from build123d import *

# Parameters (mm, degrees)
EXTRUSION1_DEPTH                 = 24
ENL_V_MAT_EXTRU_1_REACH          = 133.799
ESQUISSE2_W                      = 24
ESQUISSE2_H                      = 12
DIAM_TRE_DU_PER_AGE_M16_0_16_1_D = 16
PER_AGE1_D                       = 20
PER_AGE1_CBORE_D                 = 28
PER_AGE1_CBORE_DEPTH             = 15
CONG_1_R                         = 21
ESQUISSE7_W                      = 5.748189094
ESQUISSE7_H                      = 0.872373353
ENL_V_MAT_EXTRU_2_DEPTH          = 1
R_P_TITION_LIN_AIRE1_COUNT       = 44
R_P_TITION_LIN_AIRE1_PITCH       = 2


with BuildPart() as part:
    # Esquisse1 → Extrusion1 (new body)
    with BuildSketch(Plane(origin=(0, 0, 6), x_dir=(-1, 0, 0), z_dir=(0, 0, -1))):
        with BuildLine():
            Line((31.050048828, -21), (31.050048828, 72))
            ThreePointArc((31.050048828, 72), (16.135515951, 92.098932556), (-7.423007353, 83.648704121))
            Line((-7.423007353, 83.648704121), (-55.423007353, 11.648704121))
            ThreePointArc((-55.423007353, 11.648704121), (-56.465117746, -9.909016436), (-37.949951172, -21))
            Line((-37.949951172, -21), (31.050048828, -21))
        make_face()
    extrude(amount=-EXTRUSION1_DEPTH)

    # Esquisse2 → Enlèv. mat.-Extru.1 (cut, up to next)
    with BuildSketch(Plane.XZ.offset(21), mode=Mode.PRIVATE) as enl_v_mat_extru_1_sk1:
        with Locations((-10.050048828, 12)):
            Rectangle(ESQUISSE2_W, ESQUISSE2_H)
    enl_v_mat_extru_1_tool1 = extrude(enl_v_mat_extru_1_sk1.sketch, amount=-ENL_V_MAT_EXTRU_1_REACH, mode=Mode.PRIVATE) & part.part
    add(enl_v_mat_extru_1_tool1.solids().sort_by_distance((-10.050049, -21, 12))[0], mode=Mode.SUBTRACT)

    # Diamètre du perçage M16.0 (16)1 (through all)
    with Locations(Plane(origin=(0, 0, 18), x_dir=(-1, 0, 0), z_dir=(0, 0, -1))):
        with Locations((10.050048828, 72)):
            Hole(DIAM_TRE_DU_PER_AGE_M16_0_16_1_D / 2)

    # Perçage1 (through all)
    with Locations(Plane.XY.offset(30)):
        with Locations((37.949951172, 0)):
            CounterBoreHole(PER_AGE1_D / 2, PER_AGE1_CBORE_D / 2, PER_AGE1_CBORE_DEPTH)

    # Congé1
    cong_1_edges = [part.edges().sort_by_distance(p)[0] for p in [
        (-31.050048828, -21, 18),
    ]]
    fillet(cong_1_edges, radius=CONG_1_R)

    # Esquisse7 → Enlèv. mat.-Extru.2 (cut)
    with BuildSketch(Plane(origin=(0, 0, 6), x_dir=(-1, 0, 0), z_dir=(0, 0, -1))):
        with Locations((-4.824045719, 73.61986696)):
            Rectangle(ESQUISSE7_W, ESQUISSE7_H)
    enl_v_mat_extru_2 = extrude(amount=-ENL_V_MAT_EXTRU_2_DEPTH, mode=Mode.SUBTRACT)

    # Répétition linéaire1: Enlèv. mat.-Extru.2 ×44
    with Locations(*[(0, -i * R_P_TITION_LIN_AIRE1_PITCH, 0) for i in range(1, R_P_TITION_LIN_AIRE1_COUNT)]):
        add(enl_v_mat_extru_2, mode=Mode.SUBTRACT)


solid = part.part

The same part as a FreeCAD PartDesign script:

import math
import FreeCAD as App
import Part
import Sketcher

V = App.Vector
Q = App.Units.Quantity


def edges_at(feature, points):
    """Names of the edges that pass closest to the given points."""
    edges = feature.Shape.Edges
    near = lambda p: min(range(len(edges)), key=lambda i: edges[i].distToShape(Part.Vertex(*p))[0])
    return sorted({f"Edge{near(p) + 1}" for p in points})


def add_polygon(sketch, points):
    """Adds a closed chain of lines whose ends are joined by coincident constraints."""
    first, n = sketch.GeometryCount, len(points)
    for a, b in zip(points, points[1:] + points[:1]):
        sketch.addGeometry(Part.LineSegment(App.Vector(*a, 0), App.Vector(*b, 0)), False)
    for i in range(n):
        sketch.addConstraint(Sketcher.Constraint("Coincident", first + i, 2, first + (i + 1) % n, 1))

doc = App.newDocument("Part")
body = doc.addObject("PartDesign::Body", "Body")

# Sketch on XY plane
sketch1 = body.newObject("Sketcher::SketchObject", "Sketch")
sketch1.AttachmentSupport = (doc.getObject("XY_Plane"), [""])
sketch1.MapMode = "FlatFace"
sketch1.AttachmentOffset = App.Placement(V(0, 0, 6), App.Rotation())
sketch1.addGeometry([
    Part.LineSegment(V(-31.050049, -21, 0), V(-31.050049, 72, 0)),  # 0
    Part.ArcOfCircle(Part.Circle(V(-10.050049, 72, 0), V(0, 0, 1), 21), math.radians(33.690068), math.radians(180)),  # 1
    Part.LineSegment(V(7.423007, 83.648704, 0), V(55.423007, 11.648704, 0)),  # 2
    Part.ArcOfCircle(Part.Circle(V(37.949951, 0, 0), V(0, 0, 1), 21), math.radians(-90), math.radians(33.690068)),  # 3
    Part.LineSegment(V(37.949951, -21, 0), V(-31.050049, -21, 0)),  # 4
], False)
sketch1.addConstraint([
    Sketcher.Constraint("Tangent", 0, 2, 1, 2),
    Sketcher.Constraint("Tangent", 1, 1, 2, 1),
    Sketcher.Constraint("Tangent", 2, 2, 3, 2),
    Sketcher.Constraint("Tangent", 3, 1, 4, 1),
    Sketcher.Constraint("Coincident", 4, 2, 0, 1),
    Sketcher.Constraint("Vertical", 0),
    Sketcher.Constraint("Horizontal", 4),
    Sketcher.Constraint("Equal", 1, 3),
    Sketcher.Constraint("PointOnObject", 3, 3, -1),
    Sketcher.Constraint("Radius", 1, Q("21 mm")),
    Sketcher.Constraint("DistanceX", 4, 2, 4, 1, Q("69 mm")),
    Sketcher.Constraint("DistanceY", 0, 1, 0, 2, Q("93 mm")),
    Sketcher.Constraint("DistanceX", 1, 3, -1, 1, Q("10.050049 mm")),
])
pad1 = body.newObject("PartDesign::Pad", "Pad")
pad1.Profile = sketch1
pad1.Length = 24

# Sketch on XZ plane
sketch2 = body.newObject("Sketcher::SketchObject", "Sketch001")
sketch2.AttachmentSupport = (doc.getObject("XZ_Plane"), [""])
sketch2.MapMode = "FlatFace"
sketch2.AttachmentOffset = App.Placement(V(0, 0, 21), App.Rotation())
add_polygon(sketch2, [(-22.050049, 18), (-22.050049, 6), (1.949951, 6), (1.949951, 18)])  # lines 0-3
sketch2.addConstraint([
    Sketcher.Constraint("Vertical", 0),
    Sketcher.Constraint("Horizontal", 1),
    Sketcher.Constraint("Vertical", 2),
    Sketcher.Constraint("Horizontal", 3),
    Sketcher.Constraint("DistanceX", 1, 1, 1, 2, Q("24 mm")),
    Sketcher.Constraint("DistanceY", 0, 2, 0, 1, Q("12 mm")),
    Sketcher.Constraint("DistanceY", -1, 1, 0, 2, Q("6 mm")),
    Sketcher.Constraint("DistanceX", 0, 2, -1, 1, Q("22.050049 mm")),
])
pocket1 = body.newObject("PartDesign::Pocket", "Pocket")
pocket1.Profile = sketch2
pocket1.Type = "UpToFirst"

# Sketch on XY plane
sketch3 = body.newObject("Sketcher::SketchObject", "Sketch002")
sketch3.AttachmentSupport = (doc.getObject("XY_Plane"), [""])
sketch3.MapMode = "FlatFace"
sketch3.AttachmentOffset = App.Placement(V(0, 0, 18), App.Rotation())
sketch3.addGeometry(Part.Circle(V(-10.050049, 72, 0), V(0, 0, 1), 8), False)
sketch3.addConstraint([
    Sketcher.Constraint("Diameter", 0, Q("16 mm")),
    Sketcher.Constraint("DistanceY", -1, 1, 0, 3, Q("72 mm")),
    Sketcher.Constraint("DistanceX", 0, 3, -1, 1, Q("10.050049 mm")),
])
doc.recompute()
hole = body.newObject("PartDesign::Hole", "Hole")
hole.Profile = sketch3
hole.ThreadType = "None"
hole.Diameter = 16
hole.DepthType = "ThroughAll"
hole.Reversed = True

# Sketch on XY plane
sketch4 = body.newObject("Sketcher::SketchObject", "Sketch003")
sketch4.AttachmentSupport = (doc.getObject("XY_Plane"), [""])
sketch4.MapMode = "FlatFace"
sketch4.AttachmentOffset = App.Placement(V(0, 0, 30), App.Rotation())
sketch4.addGeometry(Part.Circle(V(37.949951, 0, 0), V(0, 0, 1), 10), False)
sketch4.addConstraint([
    Sketcher.Constraint("PointOnObject", 0, 3, -1),
    Sketcher.Constraint("Diameter", 0, Q("20 mm")),
    Sketcher.Constraint("DistanceX", -1, 1, 0, 3, Q("37.949951 mm")),
])
doc.recompute()
hole2 = body.newObject("PartDesign::Hole", "Hole001")
hole2.Profile = sketch4
hole2.ThreadType = "None"
hole2.Diameter = 20
hole2.DepthType = "ThroughAll"
hole2.HoleCutType = "Counterbore"
hole2.HoleCutDiameter = 28
hole2.HoleCutDepth = 15
doc.recompute()

fillet = body.newObject("PartDesign::Fillet", "Fillet")
fillet.Base = (hole2, edges_at(hole2, [(-31.05, -21, 18)]))
fillet.Radius = 21

# Sketch on XY plane
sketch5 = body.newObject("Sketcher::SketchObject", "Sketch004")
sketch5.AttachmentSupport = (doc.getObject("XY_Plane"), [""])
sketch5.MapMode = "FlatFace"
sketch5.AttachmentOffset = App.Placement(V(0, 0, 6), App.Rotation())
add_polygon(sketch5, [(7.69814, 74.056054), (7.69814, 73.18368), (1.949951, 73.18368), (1.949951, 74.056054)])  # lines 0-3
sketch5.addConstraint([
    Sketcher.Constraint("Vertical", 0),
    Sketcher.Constraint("Horizontal", 1),
    Sketcher.Constraint("Vertical", 2),
    Sketcher.Constraint("Horizontal", 3),
    Sketcher.Constraint("DistanceX", 1, 2, 1, 1, Q("5.748189 mm")),
    Sketcher.Constraint("DistanceY", 0, 2, 0, 1, Q("0.872373 mm")),
    Sketcher.Constraint("DistanceX", -1, 1, 0, 2, Q("7.69814 mm")),
    Sketcher.Constraint("DistanceY", -1, 1, 0, 2, Q("73.18368 mm")),
])
pocket2 = body.newObject("PartDesign::Pocket", "Pocket001")
pocket2.Profile = sketch5
pocket2.Length = 1
pocket2.Reversed = True
doc.recompute()

linearpattern = body.newObject("PartDesign::LinearPattern", "LinearPattern")
linearpattern.Originals = [pocket2]
linearpattern.Direction = (doc.getObject("Y_Axis"), [""])
linearpattern.Mode = "offset"
linearpattern.Offset = 2
linearpattern.Occurrences = 44
linearpattern.Reversed = True
body.Tip = linearpattern

doc.recompute()
